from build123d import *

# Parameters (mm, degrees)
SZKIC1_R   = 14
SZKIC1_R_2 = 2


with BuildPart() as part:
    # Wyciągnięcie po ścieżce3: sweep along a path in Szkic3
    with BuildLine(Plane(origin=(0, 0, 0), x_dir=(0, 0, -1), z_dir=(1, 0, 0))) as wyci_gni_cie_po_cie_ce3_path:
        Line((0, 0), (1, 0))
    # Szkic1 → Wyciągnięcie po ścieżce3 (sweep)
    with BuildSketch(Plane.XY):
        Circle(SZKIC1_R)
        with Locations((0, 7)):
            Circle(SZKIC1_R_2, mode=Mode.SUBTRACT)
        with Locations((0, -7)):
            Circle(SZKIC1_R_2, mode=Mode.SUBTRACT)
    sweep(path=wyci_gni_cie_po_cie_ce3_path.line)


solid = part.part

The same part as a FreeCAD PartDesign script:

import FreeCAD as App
import Part
import Sketcher
Q = App.Units.Quantity

doc = App.newDocument("Part")
body = doc.addObject("PartDesign::Body", "Body")

# Sketch on XY plane
sketch1 = doc.addObject("Sketcher::SketchObject", "Sketch")
body.addObject(sketch1)
sketch1.AttachmentSupport = (doc.XY_Plane, [""])
sketch1.MapMode = "FlatFace"
sketch1.addGeometry(Part.Circle(App.Vector(0, 0, 0), App.Vector(0, 0, 1), 14), False)
sketch1.addGeometry(Part.Circle(App.Vector(0, -7, 0), App.Vector(0, 0, 1), 2), False)
sketch1.addGeometry(Part.Circle(App.Vector(0, 7, 0), App.Vector(0, 0, 1), 2), False)
sketch1.addConstraint(Sketcher.Constraint("Coincident", 0, 3, -1, 1))
sketch1.addConstraint(Sketcher.Constraint("Equal", 1, 2))
sketch1.addConstraint(Sketcher.Constraint("Symmetric", 1, 3, 2, 3, -1, 1))
sketch1.addConstraint(Sketcher.Constraint("PointOnObject", 1, 3, -2))
sketch1.addConstraint(Sketcher.Constraint("Diameter", 0, Q("28 mm")))
sketch1.addConstraint(Sketcher.Constraint("Diameter", 1, Q("4 mm")))
sketch1.addConstraint(Sketcher.Constraint("DistanceY", 1, 3, -1, 1, Q("7 mm")))

# Sketch on XZ plane
sketch2 = doc.addObject("Sketcher::SketchObject", "Sketch001")
body.addObject(sketch2)
sketch2.AttachmentSupport = (doc.XZ_Plane, [""])
sketch2.MapMode = "FlatFace"
sketch2.addGeometry(Part.LineSegment(App.Vector(0, 0, 0), App.Vector(0, -1, 0)), False)
sketch2.addConstraint(Sketcher.Constraint("Vertical", 0))
sketch2.addConstraint(Sketcher.Constraint("Coincident", 0, 1, -1, 1))
sketch2.addConstraint(Sketcher.Constraint("DistanceY", 0, 2, 0, 1, Q("1 mm")))
doc.recompute()

additivepipe = doc.addObject("PartDesign::AdditivePipe", "AdditivePipe")
body.addObject(additivepipe)
additivepipe.Profile = sketch1
additivepipe.Spine = (sketch2, ["Edge1"])

doc.recompute()
